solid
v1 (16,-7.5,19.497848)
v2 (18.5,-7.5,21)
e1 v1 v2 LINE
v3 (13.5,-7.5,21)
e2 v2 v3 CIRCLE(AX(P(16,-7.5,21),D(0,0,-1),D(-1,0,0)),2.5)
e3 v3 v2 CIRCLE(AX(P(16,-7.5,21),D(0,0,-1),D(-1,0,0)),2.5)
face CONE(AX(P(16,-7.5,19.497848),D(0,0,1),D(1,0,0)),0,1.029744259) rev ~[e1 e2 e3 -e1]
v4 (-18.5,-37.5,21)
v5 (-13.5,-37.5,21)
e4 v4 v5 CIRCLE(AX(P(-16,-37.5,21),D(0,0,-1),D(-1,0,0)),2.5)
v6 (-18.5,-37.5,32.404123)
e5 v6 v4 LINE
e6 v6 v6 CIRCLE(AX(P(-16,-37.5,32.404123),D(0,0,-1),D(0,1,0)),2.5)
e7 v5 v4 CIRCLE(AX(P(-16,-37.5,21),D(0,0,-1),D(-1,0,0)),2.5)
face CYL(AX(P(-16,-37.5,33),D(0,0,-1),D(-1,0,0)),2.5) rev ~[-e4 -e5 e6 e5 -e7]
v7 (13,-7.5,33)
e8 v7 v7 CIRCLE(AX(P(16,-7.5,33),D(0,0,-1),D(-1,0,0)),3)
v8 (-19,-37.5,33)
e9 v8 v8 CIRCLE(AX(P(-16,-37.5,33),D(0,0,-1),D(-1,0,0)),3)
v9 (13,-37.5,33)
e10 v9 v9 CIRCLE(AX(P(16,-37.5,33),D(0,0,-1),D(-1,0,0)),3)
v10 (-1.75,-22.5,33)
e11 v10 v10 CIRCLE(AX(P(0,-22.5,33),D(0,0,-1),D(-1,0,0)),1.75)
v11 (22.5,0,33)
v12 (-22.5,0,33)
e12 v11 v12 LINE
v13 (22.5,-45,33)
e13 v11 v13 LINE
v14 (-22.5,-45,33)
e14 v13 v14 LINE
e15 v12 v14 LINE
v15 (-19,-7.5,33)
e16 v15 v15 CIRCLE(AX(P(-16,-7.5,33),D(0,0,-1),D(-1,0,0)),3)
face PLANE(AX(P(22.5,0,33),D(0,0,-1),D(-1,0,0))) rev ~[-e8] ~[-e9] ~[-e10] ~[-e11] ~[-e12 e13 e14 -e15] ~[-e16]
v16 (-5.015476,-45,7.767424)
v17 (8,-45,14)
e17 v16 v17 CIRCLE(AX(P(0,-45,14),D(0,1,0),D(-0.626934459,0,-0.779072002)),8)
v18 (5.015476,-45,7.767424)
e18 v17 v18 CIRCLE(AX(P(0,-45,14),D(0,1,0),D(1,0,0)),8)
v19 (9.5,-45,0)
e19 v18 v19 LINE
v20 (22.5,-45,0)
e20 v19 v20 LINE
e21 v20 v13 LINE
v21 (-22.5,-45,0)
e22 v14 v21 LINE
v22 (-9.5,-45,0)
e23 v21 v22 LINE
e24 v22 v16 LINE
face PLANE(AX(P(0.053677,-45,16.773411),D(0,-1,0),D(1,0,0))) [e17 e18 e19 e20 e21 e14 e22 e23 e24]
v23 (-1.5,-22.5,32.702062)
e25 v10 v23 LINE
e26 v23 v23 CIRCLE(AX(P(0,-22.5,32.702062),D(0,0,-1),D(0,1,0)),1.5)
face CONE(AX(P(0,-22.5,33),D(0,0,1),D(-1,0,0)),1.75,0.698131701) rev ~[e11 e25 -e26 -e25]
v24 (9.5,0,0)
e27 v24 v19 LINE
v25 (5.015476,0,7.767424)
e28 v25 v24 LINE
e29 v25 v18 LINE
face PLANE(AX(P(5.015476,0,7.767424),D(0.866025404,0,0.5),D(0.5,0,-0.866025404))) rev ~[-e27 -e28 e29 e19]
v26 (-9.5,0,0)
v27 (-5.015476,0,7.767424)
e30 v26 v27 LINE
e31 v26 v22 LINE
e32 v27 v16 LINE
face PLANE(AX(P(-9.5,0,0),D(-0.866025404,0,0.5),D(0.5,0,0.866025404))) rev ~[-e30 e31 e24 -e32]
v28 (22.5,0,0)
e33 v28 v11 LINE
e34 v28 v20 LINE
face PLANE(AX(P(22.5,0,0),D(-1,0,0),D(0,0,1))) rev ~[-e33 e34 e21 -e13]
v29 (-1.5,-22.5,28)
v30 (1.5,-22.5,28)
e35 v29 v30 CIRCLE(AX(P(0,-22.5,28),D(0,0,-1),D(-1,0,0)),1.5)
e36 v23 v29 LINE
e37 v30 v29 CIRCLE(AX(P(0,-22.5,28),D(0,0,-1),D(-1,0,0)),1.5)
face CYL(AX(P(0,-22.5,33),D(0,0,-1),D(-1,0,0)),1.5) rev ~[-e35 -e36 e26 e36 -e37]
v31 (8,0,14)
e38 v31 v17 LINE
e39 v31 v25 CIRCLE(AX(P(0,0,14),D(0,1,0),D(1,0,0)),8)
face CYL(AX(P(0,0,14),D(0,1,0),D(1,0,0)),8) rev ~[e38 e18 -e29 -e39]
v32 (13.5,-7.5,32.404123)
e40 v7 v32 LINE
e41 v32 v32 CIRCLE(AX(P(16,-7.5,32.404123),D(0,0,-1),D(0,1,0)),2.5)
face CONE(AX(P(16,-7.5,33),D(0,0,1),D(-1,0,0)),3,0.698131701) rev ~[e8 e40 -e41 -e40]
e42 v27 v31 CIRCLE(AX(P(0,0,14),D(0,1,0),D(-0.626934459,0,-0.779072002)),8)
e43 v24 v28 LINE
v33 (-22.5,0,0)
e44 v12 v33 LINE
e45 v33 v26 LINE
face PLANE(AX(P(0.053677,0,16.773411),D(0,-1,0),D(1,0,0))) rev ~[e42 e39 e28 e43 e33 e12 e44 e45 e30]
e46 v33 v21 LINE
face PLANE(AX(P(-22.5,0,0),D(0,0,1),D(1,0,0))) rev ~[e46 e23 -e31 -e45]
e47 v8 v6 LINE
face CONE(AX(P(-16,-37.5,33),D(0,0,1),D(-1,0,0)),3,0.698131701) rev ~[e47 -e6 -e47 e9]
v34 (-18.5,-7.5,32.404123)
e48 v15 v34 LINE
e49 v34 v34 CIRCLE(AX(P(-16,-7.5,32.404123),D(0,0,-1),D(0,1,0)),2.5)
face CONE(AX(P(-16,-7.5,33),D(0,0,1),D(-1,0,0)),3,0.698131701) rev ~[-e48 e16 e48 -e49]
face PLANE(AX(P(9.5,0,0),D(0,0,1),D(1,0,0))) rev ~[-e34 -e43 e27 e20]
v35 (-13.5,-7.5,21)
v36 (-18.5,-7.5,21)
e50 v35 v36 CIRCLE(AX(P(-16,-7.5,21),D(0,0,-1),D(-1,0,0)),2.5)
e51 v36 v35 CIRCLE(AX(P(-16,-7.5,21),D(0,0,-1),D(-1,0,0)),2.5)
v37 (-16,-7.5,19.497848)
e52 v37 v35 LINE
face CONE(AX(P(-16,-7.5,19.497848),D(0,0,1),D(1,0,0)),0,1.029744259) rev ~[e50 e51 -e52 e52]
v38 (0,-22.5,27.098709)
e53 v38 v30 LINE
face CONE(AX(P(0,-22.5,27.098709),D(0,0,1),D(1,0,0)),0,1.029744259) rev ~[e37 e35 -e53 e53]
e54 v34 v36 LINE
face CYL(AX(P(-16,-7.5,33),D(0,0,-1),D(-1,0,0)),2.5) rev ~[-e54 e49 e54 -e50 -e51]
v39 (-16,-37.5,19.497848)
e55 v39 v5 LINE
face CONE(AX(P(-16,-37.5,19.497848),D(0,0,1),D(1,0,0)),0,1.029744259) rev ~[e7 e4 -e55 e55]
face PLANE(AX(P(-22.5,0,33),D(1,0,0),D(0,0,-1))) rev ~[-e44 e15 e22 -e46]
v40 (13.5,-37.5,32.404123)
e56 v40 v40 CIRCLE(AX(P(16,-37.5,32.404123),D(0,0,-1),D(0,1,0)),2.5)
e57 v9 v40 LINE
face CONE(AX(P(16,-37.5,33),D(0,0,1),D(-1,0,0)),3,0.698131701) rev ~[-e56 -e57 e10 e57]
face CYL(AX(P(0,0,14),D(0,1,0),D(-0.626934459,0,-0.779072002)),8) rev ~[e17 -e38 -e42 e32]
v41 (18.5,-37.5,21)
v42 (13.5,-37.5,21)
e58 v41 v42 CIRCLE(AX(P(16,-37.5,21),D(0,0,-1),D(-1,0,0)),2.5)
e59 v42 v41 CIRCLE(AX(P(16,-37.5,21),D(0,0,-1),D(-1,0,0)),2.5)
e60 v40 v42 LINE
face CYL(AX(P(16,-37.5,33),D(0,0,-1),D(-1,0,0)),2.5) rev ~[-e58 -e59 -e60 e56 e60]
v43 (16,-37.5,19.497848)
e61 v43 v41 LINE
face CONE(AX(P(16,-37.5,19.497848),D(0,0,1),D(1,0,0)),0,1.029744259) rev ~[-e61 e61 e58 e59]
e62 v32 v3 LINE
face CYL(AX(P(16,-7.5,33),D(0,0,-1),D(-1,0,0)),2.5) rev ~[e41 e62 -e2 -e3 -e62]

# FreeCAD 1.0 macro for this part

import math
import FreeCAD as App
import Part
import Sketcher
from FreeCAD import Vector
Q = App.Units.Quantity

doc = App.newDocument("Part")
body = doc.addObject("PartDesign::Body", "Body")

sketch1 = body.newObject("Sketcher::SketchObject", "Sketch")
sketch1.AttachmentSupport = (doc.getObject("XZ_Plane"), [""])
sketch1.MapMode = "FlatFace"
sketch1.addGeometry(Part.LineSegment(Vector(10, 0, 0), Vector(22, 0, 0)), False)
sketch1.addGeometry(Part.LineSegment(Vector(22, 0, 0), Vector(22, 33, 0)), False)
sketch1.addGeometry(Part.LineSegment(Vector(22, 33, 0), Vector(-22, 33, 0)), False)
sketch1.addGeometry(Part.LineSegment(Vector(-22, 33, 0), Vector(-22, 0, 0)), False)
sketch1.addGeometry(Part.LineSegment(Vector(-22, 0, 0), Vector(-10, 0, 0)), False)
sketch1.addGeometry(Part.LineSegment(Vector(-10, 0, 0), Vector(-5, 8, 0)), False)
sketch1.addGeometry(Part.ArcOfCircle(Part.Circle(Vector(0, 14, 0), Vector(0, 0, 1), 8), math.radians(0), math.radians(231)), False)
sketch1.addGeometry(Part.ArcOfCircle(Part.Circle(Vector(0, 14, 0), Vector(0, 0, 1), 8), math.radians(-51), math.radians(0)), False)
sketch1.addGeometry(Part.LineSegment(Vector(5, 8, 0), Vector(10, 0, 0)), False)
sketch1.addConstraint(Sketcher.Constraint("Coincident", 0, 2, 1, 1))
sketch1.addConstraint(Sketcher.Constraint("Coincident", 1, 2, 2, 1))
sketch1.addConstraint(Sketcher.Constraint("Coincident", 2, 2, 3, 1))
sketch1.addConstraint(Sketcher.Constraint("Coincident", 3, 2, 4, 1))
sketch1.addConstraint(Sketcher.Constraint("Coincident", 4, 2, 5, 1))
sketch1.addConstraint(Sketcher.Constraint("Coincident", 5, 2, 6, 2))
sketch1.addConstraint(Sketcher.Constraint("Tangent", 6, 1, 7, 2))
sketch1.addConstraint(Sketcher.Constraint("Coincident", 7, 1, 8, 1))
sketch1.addConstraint(Sketcher.Constraint("Coincident", 8, 2, 0, 1))
sketch1.addConstraint(Sketcher.Constraint("Horizontal", 0))
sketch1.addConstraint(Sketcher.Constraint("Vertical", 1))
sketch1.addConstraint(Sketcher.Constraint("Horizontal", 2))
sketch1.addConstraint(Sketcher.Constraint("Vertical", 3))
sketch1.addConstraint(Sketcher.Constraint("Horizontal", 4))
sketch1.addConstraint(Sketcher.Constraint("Equal", 6, 7))
sketch1.addConstraint(Sketcher.Constraint("Symmetric", 0, 2, 3, 2, -1, 1))
sketch1.addConstraint(Sketcher.Constraint("Symmetric", 5, 2, 7, 1, -2))
sketch1.addConstraint(Sketcher.Constraint("Symmetric", 4, 2, 8, 2, -2))
sketch1.addConstraint(Sketcher.Constraint("Horizontal", 7, 3, 6, 1))
sketch1.addConstraint(Sketcher.Constraint("Radius", 6, 8.0))
sketch1.addConstraint(Sketcher.Constraint("DistanceX", 0, 1, 0, 2, 13.0))
sketch1.addConstraint(Sketcher.Constraint("DistanceX", 2, 2, 2, 1, 45.0))
sketch1.addConstraint(Sketcher.Constraint("DistanceY", 1, 1, 1, 2, 33.0))
sketch1.addConstraint(Sketcher.Constraint("Angle", 5, Q("60 deg")))
sketch1.addConstraint(Sketcher.Constraint("DistanceY", -1, 1, 6, 3, 14.0))
pad1 = body.newObject("PartDesign::Pad", "Pad")
pad1.Profile = sketch1
pad1.Length = 45

sketch2 = body.newObject("Sketcher::SketchObject", "Sketch001")
sketch2.AttachmentSupport = (doc.getObject("XY_Plane"), [""])
sketch2.MapMode = "FlatFace"
sketch2.AttachmentOffset = App.Placement(Vector(0, 0, 33), App.Rotation())
sketch2.addGeometry(Part.Circle(Vector(-16, -7.5, 0), Vector(0, 0, 1), 2.5), False)
sketch2.addGeometry(Part.Circle(Vector(-16, -37.5, 0), Vector(0, 0, 1), 2.5), False)
sketch2.addGeometry(Part.Circle(Vector(16, -37.5, 0), Vector(0, 0, 1), 2.5), False)
sketch2.addGeometry(Part.Circle(Vector(16, -7.5, 0), Vector(0, 0, 1), 2.5), False)
sketch2.addConstraint(Sketcher.Constraint("Equal", 0, 1))
sketch2.addConstraint(Sketcher.Constraint("Equal", 1, 2))
sketch2.addConstraint(Sketcher.Constraint("Equal", 2, 3))
sketch2.addConstraint(Sketcher.Constraint("Symmetric", 1, 3, 2, 3, -2))
sketch2.addConstraint(Sketcher.Constraint("Symmetric", 0, 3, 3, 3, -2))
sketch2.addConstraint(Sketcher.Constraint("Vertical", 0, 3, 1, 3))
sketch2.addConstraint(Sketcher.Constraint("Diameter", 0, 5.0))
sketch2.addConstraint(Sketcher.Constraint("DistanceX", 0, 3, -1, 1, 16.0))
sketch2.addConstraint(Sketcher.Constraint("DistanceY", 1, 3, 0, 3, 30.0))
sketch2.addConstraint(Sketcher.Constraint("DistanceY", 0, 3, -1, 1, 7.5))
doc.recompute()
hole = body.newObject("PartDesign::Hole", "Hole")
hole.Profile = sketch2
hole.ThreadType = "None"
hole.Diameter = 5
hole.DepthType = "Dimension"
hole.Depth = 12
hole.DrillPoint = "Angled"
hole.DrillPointAngle = 118
hole.HoleCutType = "Countersink"
hole.HoleCutDiameter = 6
hole.HoleCutCountersinkAngle = 80

sketch3 = body.newObject("Sketcher::SketchObject", "Sketch002")
sketch3.AttachmentSupport = (doc.getObject("XY_Plane"), [""])
sketch3.MapMode = "FlatFace"
sketch3.AttachmentOffset = App.Placement(Vector(0, 0, 33), App.Rotation())
sketch3.addGeometry(Part.Circle(Vector(0, -22.5, 0), Vector(0, 0, 1), 1.5), False)
sketch3.addConstraint(Sketcher.Constraint("PointOnObject", 0, 3, -2))
sketch3.addConstraint(Sketcher.Constraint("Diameter", 0, 3.0))
sketch3.addConstraint(Sketcher.Constraint("DistanceY", 0, 3, -1, 1, 22.5))
doc.recompute()
hole2 = body.newObject("PartDesign::Hole", "Hole001")
hole2.Profile = sketch3
hole2.ThreadType = "None"
hole2.Diameter = 3
hole2.DepthType = "Dimension"
hole2.Depth = 5
hole2.DrillPoint = "Angled"
hole2.DrillPointAngle = 118
hole2.HoleCutType = "Countersink"
hole2.HoleCutDiameter = 3.5
hole2.HoleCutCountersinkAngle = 80

doc.recompute()
